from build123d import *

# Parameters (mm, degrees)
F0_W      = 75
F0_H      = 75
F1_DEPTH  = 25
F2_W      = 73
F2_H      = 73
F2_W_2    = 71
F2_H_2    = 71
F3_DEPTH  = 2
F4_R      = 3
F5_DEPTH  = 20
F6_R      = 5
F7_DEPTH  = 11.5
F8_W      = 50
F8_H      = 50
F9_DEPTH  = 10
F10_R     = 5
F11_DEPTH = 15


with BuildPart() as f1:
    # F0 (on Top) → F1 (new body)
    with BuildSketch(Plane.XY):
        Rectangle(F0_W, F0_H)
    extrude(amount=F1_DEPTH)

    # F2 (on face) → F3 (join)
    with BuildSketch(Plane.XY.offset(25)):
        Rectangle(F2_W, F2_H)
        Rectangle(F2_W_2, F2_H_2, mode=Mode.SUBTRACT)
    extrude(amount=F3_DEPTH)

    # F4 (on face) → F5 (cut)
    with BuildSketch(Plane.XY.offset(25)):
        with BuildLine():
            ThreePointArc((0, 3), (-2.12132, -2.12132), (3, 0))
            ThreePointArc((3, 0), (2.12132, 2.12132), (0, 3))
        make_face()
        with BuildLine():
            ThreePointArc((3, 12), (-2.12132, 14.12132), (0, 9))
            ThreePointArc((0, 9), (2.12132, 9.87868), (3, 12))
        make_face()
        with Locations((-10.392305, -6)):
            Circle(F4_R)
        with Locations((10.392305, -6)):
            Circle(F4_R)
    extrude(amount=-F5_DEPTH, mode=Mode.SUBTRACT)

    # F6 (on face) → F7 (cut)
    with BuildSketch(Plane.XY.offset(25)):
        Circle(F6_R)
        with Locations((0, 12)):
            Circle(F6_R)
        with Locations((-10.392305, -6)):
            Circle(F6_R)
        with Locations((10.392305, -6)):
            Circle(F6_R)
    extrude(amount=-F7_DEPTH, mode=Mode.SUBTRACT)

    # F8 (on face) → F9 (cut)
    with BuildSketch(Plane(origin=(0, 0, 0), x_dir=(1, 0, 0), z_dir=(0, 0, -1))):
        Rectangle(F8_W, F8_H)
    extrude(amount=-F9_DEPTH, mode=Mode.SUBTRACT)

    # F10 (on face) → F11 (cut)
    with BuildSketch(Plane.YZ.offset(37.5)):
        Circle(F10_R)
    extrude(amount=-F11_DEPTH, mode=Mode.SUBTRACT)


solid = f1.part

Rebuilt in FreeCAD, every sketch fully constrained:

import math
import FreeCAD as App
import Part
import Sketcher
Q = App.Units.Quantity


def add_polygon(sketch, points):
    """Adds a closed chain of lines whose ends are joined by coincident constraints."""
    first, n = sketch.GeometryCount, len(points)
    for a, b in zip(points, points[1:] + points[:1]):
        sketch.addGeometry(Part.LineSegment(App.Vector(*a, 0), App.Vector(*b, 0)), False)
    for i in range(n):
        sketch.addConstraint(Sketcher.Constraint("Coincident", first + i, 2, first + (i + 1) % n, 1))

doc = App.newDocument("Part")
params = doc.addObject("Spreadsheet::Sheet", "Params")
for row, (alias, value) in enumerate([
    ("sketch1_width", "75 mm"),
    ("pad1_length", "25 mm"),
    ("sketch2_width", "73 mm"),
    ("sketch2_width2", "71 mm"),
    ("pad2_length", "2 mm"),
    ("sketch3_diameter", "6 mm"),
    ("pocket1_length", "20 mm"),
    ("sketch4_diameter", "10 mm"),
    ("pocket2_length", "11.5 mm"),
    ("sketch5_width", "50 mm"),
    ("pocket3_length", "10 mm"),
    ("sketch6_diameter", "10 mm"),
    ("pocket4_length", "15 mm"),
], start=1):
    params.set(f"A{row}", alias)
    params.set(f"B{row}", "=" + value)
    params.setAlias(f"B{row}", alias)

body = doc.addObject("PartDesign::Body", "Body")

# Sketch on XY plane
sketch1 = body.newObject("Sketcher::SketchObject", "Sketch")
sketch1.AttachmentSupport = (doc.getObject("XY_Plane"), [""])
sketch1.MapMode = "FlatFace"
add_polygon(sketch1, [(-38, 38), (-38, -38), (38, -38), (38, 38)])  # lines 0-3
sketch1.addConstraint([
    Sketcher.Constraint("Vertical", 0),
    Sketcher.Constraint("Horizontal", 1),
    Sketcher.Constraint("Vertical", 2),
    Sketcher.Constraint("Horizontal", 3),
    Sketcher.Constraint("Symmetric", 0, 2, 2, 2, -1, 1),
    Sketcher.Constraint("Equal", 3, 0),
    Sketcher.Constraint("DistanceX", 1, 1, 1, 2, Q("75 mm")),
])
sketch1.setExpression("Constraints[10]", "Params.sketch1_width")
pad1 = body.newObject("PartDesign::Pad", "Pad")
pad1.Profile = sketch1
pad1.setExpression("Length", "Params.pad1_length")

# Sketch on XY plane
sketch2 = body.newObject("Sketcher::SketchObject", "Sketch001")
sketch2.AttachmentSupport = (doc.getObject("XY_Plane"), [""])
sketch2.MapMode = "FlatFace"
sketch2.AttachmentOffset = App.Placement(App.Vector(0, 0, 25), App.Rotation())
add_polygon(sketch2, [(-36, 36), (-36, -36), (36, -36), (36, 36)])  # lines 0-3
add_polygon(sketch2, [(36, -36), (-36, -36), (-36, 36), (36, 36)])  # lines 4-7
sketch2.addConstraint([
    Sketcher.Constraint("Vertical", 0),
    Sketcher.Constraint("Horizontal", 1),
    Sketcher.Constraint("Vertical", 2),
    Sketcher.Constraint("Horizontal", 3),
    Sketcher.Constraint("Horizontal", 4),
    Sketcher.Constraint("Vertical", 5),
    Sketcher.Constraint("Horizontal", 6),
    Sketcher.Constraint("Vertical", 7),
    Sketcher.Constraint("Symmetric", 0, 2, 2, 2, -1, 1),
    Sketcher.Constraint("Symmetric", 4, 2, 6, 2, -1, 1),
    Sketcher.Constraint("Equal", 3, 0),
    Sketcher.Constraint("Equal", 6, 5),
    Sketcher.Constraint("DistanceX", 1, 1, 1, 2, Q("73 mm")),
    Sketcher.Constraint("DistanceX", 4, 2, 4, 1, Q("71 mm")),
])
sketch2.setExpression("Constraints[20]", "Params.sketch2_width")
sketch2.setExpression("Constraints[21]", "Params.sketch2_width2")
pad2 = body.newObject("PartDesign::Pad", "Pad001")
pad2.Profile = sketch2
pad2.setExpression("Length", "Params.pad2_length")

# Sketch on XY plane
sketch3 = body.newObject("Sketcher::SketchObject", "Sketch002")
sketch3.AttachmentSupport = (doc.getObject("XY_Plane"), [""])
sketch3.MapMode = "FlatFace"
sketch3.AttachmentOffset = App.Placement(App.Vector(0, 0, 25), App.Rotation())
sketch3.addGeometry([
    Part.ArcOfCircle(Part.Circle(App.Vector(0, 0, 0), App.Vector(0, 0, 1), 3), math.radians(90), math.radians(360)),  # 0
    Part.ArcOfCircle(Part.Circle(App.Vector(0, 0, 0), App.Vector(0, 0, 1), 3), math.radians(0), math.radians(90)),  # 1
    Part.ArcOfCircle(Part.Circle(App.Vector(0, 12, 0), App.Vector(0, 0, 1), 3), math.radians(0), math.radians(270)),  # 2
    Part.ArcOfCircle(Part.Circle(App.Vector(0, 12, 0), App.Vector(0, 0, 1), 3), math.radians(-90), math.radians(0)),  # 3
    Part.Circle(App.Vector(-10.4, -6, 0), App.Vector(0, 0, 1), 3),  # 4
    Part.Circle(App.Vector(10.4, -6, 0), App.Vector(0, 0, 1), 3),  # 5
], False)
sketch3.addConstraint([
    Sketcher.Constraint("Tangent", 0, 1, 1, 2),
    Sketcher.Constraint("Coincident", 1, 1, 0, 2),
    Sketcher.Constraint("Tangent", 2, 1, 3, 2),
    Sketcher.Constraint("Coincident", 3, 1, 2, 2),
    Sketcher.Constraint("Coincident", 0, 3, -1, 1),
    Sketcher.Constraint("Equal", 1, 2),
    Sketcher.Constraint("Equal", 3, 4),
    Sketcher.Constraint("Equal", 4, 5),
    Sketcher.Constraint("Symmetric", 4, 3, 5, 3, -2),
    Sketcher.Constraint("PointOnObject", 2, 3, -2),
    Sketcher.Constraint("PointOnObject", 0, 1, -2),
    Sketcher.Constraint("PointOnObject", 1, 1, -1),
    Sketcher.Constraint("PointOnObject", 3, 1, -2),
    Sketcher.Constraint("Horizontal", 3, 3, 2, 1),
    Sketcher.Constraint("Diameter", 4, Q("6 mm")),
    Sketcher.Constraint("DistanceY", -1, 1, 2, 3, Q("12 mm")),
    Sketcher.Constraint("DistanceY", 4, 3, -1, 1, Q("6 mm")),
    Sketcher.Constraint("DistanceX", 4, 3, 5, 3, Q("20.78461 mm")),
])
sketch3.setExpression("Constraints[14]", "Params.sketch3_diameter")
pocket1 = body.newObject("PartDesign::Pocket", "Pocket")
pocket1.Profile = sketch3
pocket1.setExpression("Length", "Params.pocket1_length")

# Sketch on XY plane
sketch4 = body.newObject("Sketcher::SketchObject", "Sketch003")
sketch4.AttachmentSupport = (doc.getObject("XY_Plane"), [""])
sketch4.MapMode = "FlatFace"
sketch4.AttachmentOffset = App.Placement(App.Vector(0, 0, 25), App.Rotation())
sketch4.addGeometry([
    Part.Circle(App.Vector(0, 0, 0), App.Vector(0, 0, 1), 5),
    Part.Circle(App.Vector(0, 12, 0), App.Vector(0, 0, 1), 5),
    Part.Circle(App.Vector(-10, -6, 0), App.Vector(0, 0, 1), 5),
    Part.Circle(App.Vector(10, -6, 0), App.Vector(0, 0, 1), 5),
], False)
sketch4.addConstraint([
    Sketcher.Constraint("Coincident", 0, 3, -1, 1),
    Sketcher.Constraint("Equal", 0, 1),
    Sketcher.Constraint("Equal", 1, 2),
    Sketcher.Constraint("Equal", 2, 3),
    Sketcher.Constraint("Symmetric", 2, 3, 3, 3, -2),
    Sketcher.Constraint("PointOnObject", 1, 3, -2),
    Sketcher.Constraint("Diameter", 0, Q("10 mm")),
    Sketcher.Constraint("DistanceY", -1, 1, 1, 3, Q("12 mm")),
    Sketcher.Constraint("DistanceY", 2, 3, -1, 1, Q("6 mm")),
    Sketcher.Constraint("DistanceX", 2, 3, 3, 3, Q("20.78461 mm")),
])
sketch4.setExpression("Constraints[6]", "Params.sketch4_diameter")
pocket2 = body.newObject("PartDesign::Pocket", "Pocket001")
pocket2.Profile = sketch4
pocket2.setExpression("Length", "Params.pocket2_length")

# Sketch on XY plane
sketch5 = body.newObject("Sketcher::SketchObject", "Sketch004")
sketch5.AttachmentSupport = (doc.getObject("XY_Plane"), [""])
sketch5.MapMode = "FlatFace"
add_polygon(sketch5, [(-25, -25), (-25, 25), (25, 25), (25, -25)])  # lines 0-3
sketch5.addConstraint([
    Sketcher.Constraint("Vertical", 0),
    Sketcher.Constraint("Horizontal", 1),
    Sketcher.Constraint("Vertical", 2),
    Sketcher.Constraint("Horizontal", 3),
    Sketcher.Constraint("Symmetric", 0, 2, 2, 2, -1, 1),
    Sketcher.Constraint("Equal", 3, 0),
    Sketcher.Constraint("DistanceX", 1, 1, 1, 2, Q("50 mm")),
])
sketch5.setExpression("Constraints[10]", "Params.sketch5_width")
pocket3 = body.newObject("PartDesign::Pocket", "Pocket002")
pocket3.Profile = sketch5
pocket3.setExpression("Length", "Params.pocket3_length")
pocket3.Reversed = True

# Sketch on YZ plane
sketch6 = body.newObject("Sketcher::SketchObject", "Sketch005")
sketch6.AttachmentSupport = (doc.getObject("YZ_Plane"), [""])
sketch6.MapMode = "FlatFace"
sketch6.AttachmentOffset = App.Placement(App.Vector(0, 0, 37.5), App.Rotation())
sketch6.addGeometry(Part.Circle(App.Vector(0, 0, 0), App.Vector(0, 0, 1), 5), False)
sketch6.addConstraint([
    Sketcher.Constraint("Coincident", 0, 3, -1, 1),
    Sketcher.Constraint("Diameter", 0, Q("10 mm")),
])
sketch6.setExpression("Constraints[1]", "Params.sketch6_diameter")
pocket4 = body.newObject("PartDesign::Pocket", "Pocket003")
pocket4.Profile = sketch6
pocket4.setExpression("Length", "Params.pocket4_length")

doc.recompute()
